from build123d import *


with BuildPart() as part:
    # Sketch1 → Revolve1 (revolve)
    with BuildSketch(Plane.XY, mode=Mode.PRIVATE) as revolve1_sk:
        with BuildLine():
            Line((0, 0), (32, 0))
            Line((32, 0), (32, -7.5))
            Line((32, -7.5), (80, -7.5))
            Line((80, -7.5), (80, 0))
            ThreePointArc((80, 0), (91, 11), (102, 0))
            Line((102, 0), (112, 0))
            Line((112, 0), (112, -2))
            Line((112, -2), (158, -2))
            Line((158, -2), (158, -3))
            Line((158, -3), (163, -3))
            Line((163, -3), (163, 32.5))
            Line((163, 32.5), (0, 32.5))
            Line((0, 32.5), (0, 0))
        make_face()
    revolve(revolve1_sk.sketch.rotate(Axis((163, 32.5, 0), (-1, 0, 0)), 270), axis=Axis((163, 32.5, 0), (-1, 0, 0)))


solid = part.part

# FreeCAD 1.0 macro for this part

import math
import FreeCAD as App
import Part
import Sketcher
Q = App.Units.Quantity

doc = App.newDocument("Part")
body = doc.addObject("PartDesign::Body", "Body")

# Sketch on XY plane
sketch1 = body.newObject("Sketcher::SketchObject", "Sketch")
sketch1.AttachmentSupport = (doc.getObject("XY_Plane"), [""])
sketch1.MapMode = "FlatFace"
sketch1.addGeometry([
    Part.LineSegment(App.Vector(0, 0, 0), App.Vector(32, 0, 0)),  # 0
    Part.LineSegment(App.Vector(32, 0, 0), App.Vector(32, -7.5, 0)),  # 1
    Part.LineSegment(App.Vector(32, -7.5, 0), App.Vector(80, -7.5, 0)),  # 2
    Part.LineSegment(App.Vector(80, -7.5, 0), App.Vector(80, 0, 0)),  # 3
    Part.ArcOfCircle(Part.Circle(App.Vector(91, 0, 0), App.Vector(0, 0, 1), 11), math.radians(0), math.radians(180)),  # 4
    Part.LineSegment(App.Vector(102, 0, 0), App.Vector(112, 0, 0)),  # 5
    Part.LineSegment(App.Vector(112, 0, 0), App.Vector(112, -2, 0)),  # 6
    Part.LineSegment(App.Vector(112, -2, 0), App.Vector(158, -2, 0)),  # 7
    Part.LineSegment(App.Vector(158, -2, 0), App.Vector(158, -3, 0)),  # 8
    Part.LineSegment(App.Vector(158, -3, 0), App.Vector(163, -3, 0)),  # 9
    Part.LineSegment(App.Vector(163, -3, 0), App.Vector(163, 32.5, 0)),  # 10
    Part.LineSegment(App.Vector(163, 32.5, 0), App.Vector(0, 32.5, 0)),  # 11
    Part.LineSegment(App.Vector(0, 32.5, 0), App.Vector(0, 0, 0)),  # 12
], False)
sketch1.addGeometry(Part.LineSegment(App.Vector(163, 32.5, 0), App.Vector(0, 32.5, 0)), True)  # axis
sketch1.addConstraint([
    Sketcher.Constraint("Coincident", 0, 2, 1, 1),
    Sketcher.Constraint("Coincident", 1, 2, 2, 1),
    Sketcher.Constraint("Coincident", 2, 2, 3, 1),
    Sketcher.Constraint("Tangent", 3, 2, 4, 2),
    Sketcher.Constraint("Coincident", 4, 1, 5, 1),
    Sketcher.Constraint("Coincident", 5, 2, 6, 1),
    Sketcher.Constraint("Coincident", 6, 2, 7, 1),
    Sketcher.Constraint("Coincident", 7, 2, 8, 1),
    Sketcher.Constraint("Coincident", 8, 2, 9, 1),
    Sketcher.Constraint("Coincident", 9, 2, 10, 1),
    Sketcher.Constraint("Coincident", 10, 2, 11, 1),
    Sketcher.Constraint("Coincident", 11, 2, 12, 1),
    Sketcher.Constraint("Coincident", 12, 2, 0, 1),
    Sketcher.Constraint("Horizontal", 0),
    Sketcher.Constraint("Vertical", 1),
    Sketcher.Constraint("Horizontal", 2),
    Sketcher.Constraint("Vertical", 3),
    Sketcher.Constraint("Horizontal", 5),
    Sketcher.Constraint("Vertical", 6),
    Sketcher.Constraint("Horizontal", 7),
    Sketcher.Constraint("Vertical", 8),
    Sketcher.Constraint("Horizontal", 9),
    Sketcher.Constraint("Vertical", 10),
    Sketcher.Constraint("Horizontal", 11),
    Sketcher.Constraint("Vertical", 12),
    Sketcher.Constraint("Horizontal", 13),
    Sketcher.Constraint("Coincident", 12, 2, -1, 1),
    Sketcher.Constraint("Coincident", 13, 1, 10, 2),
    Sketcher.Constraint("PointOnObject", 4, 3, -1),
    Sketcher.Constraint("PointOnObject", 4, 1, -1),
    Sketcher.Constraint("PointOnObject", 13, 2, -2),
    Sketcher.Constraint("Radius", 4, Q("11 mm")),
    Sketcher.Constraint("DistanceX", 0, 1, 0, 2, Q("32 mm")),
    Sketcher.Constraint("DistanceX", 2, 1, 2, 2, Q("48 mm")),
    Sketcher.Constraint("DistanceX", 5, 1, 5, 2, Q("10 mm")),
    Sketcher.Constraint("DistanceX", 7, 1, 7, 2, Q("46 mm")),
    Sketcher.Constraint("DistanceX", 9, 1, 9, 2, Q("5 mm")),
    Sketcher.Constraint("DistanceY", 6, 2, 6, 1, Q("2 mm")),
    Sketcher.Constraint("DistanceY", 8, 2, 8, 1, Q("1 mm")),
    Sketcher.Constraint("DistanceY", 1, 2, 1, 1, Q("7.5 mm")),
    Sketcher.Constraint("DistanceY", 10, 1, 10, 2, Q("35.5 mm")),
])
revolution = body.newObject("PartDesign::Revolution", "Revolution")
revolution.Profile = sketch1
revolution.ReferenceAxis = (sketch1, ["Axis0"])
revolution.Angle = 360

doc.recompute()
